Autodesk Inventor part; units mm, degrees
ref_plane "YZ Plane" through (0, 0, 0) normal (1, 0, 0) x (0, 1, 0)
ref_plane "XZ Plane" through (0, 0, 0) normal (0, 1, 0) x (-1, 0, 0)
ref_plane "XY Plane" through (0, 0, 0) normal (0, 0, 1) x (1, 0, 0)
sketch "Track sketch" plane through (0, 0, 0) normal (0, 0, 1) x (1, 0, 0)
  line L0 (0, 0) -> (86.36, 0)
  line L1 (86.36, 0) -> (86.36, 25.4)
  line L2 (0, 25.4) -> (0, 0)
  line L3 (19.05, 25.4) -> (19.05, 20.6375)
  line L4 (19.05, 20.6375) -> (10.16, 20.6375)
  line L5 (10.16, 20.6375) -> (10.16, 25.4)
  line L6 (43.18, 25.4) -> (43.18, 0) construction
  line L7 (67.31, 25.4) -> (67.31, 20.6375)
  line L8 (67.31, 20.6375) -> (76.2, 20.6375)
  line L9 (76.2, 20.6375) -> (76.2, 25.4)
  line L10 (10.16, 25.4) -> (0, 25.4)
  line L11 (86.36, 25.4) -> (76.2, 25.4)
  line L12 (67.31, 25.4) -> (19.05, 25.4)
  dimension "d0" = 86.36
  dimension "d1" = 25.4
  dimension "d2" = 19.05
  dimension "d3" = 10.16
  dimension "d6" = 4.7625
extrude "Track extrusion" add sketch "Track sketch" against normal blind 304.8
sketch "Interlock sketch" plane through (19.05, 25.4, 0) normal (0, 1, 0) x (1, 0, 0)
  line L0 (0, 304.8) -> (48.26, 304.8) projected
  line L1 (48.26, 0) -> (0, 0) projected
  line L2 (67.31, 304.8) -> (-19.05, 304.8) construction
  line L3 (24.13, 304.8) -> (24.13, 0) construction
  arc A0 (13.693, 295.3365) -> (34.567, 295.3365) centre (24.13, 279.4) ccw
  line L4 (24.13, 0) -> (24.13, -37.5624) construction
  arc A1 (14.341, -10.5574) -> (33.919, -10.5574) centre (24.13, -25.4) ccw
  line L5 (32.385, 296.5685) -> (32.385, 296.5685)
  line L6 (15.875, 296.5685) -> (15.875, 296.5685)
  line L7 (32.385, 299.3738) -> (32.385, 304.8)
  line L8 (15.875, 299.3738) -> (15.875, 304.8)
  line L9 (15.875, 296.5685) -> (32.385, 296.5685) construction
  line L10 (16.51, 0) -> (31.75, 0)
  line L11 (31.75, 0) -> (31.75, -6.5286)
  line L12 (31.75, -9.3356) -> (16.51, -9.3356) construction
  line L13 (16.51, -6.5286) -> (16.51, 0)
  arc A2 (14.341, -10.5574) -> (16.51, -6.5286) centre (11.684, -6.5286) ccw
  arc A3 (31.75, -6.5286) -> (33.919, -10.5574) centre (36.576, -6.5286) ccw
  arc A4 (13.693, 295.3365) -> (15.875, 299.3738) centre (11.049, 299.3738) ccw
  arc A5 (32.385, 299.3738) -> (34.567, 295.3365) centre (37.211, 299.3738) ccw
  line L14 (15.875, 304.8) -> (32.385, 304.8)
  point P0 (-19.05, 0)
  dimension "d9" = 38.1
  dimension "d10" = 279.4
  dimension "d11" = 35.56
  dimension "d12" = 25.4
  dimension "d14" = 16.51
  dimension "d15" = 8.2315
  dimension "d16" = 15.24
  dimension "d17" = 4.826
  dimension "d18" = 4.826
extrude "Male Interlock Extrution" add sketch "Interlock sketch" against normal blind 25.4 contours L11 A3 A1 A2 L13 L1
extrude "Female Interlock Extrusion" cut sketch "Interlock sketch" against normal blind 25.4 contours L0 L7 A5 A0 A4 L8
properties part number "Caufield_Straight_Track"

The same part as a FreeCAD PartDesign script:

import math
import FreeCAD as App
import Part
import Sketcher

V = App.Vector
Q = App.Units.Quantity


def add_polygon(sketch, points):
    """Adds a closed chain of lines whose ends are joined by coincident constraints."""
    first, n = sketch.GeometryCount, len(points)
    for a, b in zip(points, points[1:] + points[:1]):
        sketch.addGeometry(Part.LineSegment(App.Vector(*a, 0), App.Vector(*b, 0)), False)
    for i in range(n):
        sketch.addConstraint(Sketcher.Constraint("Coincident", first + i, 2, first + (i + 1) % n, 1))

doc = App.newDocument("Part")
body = doc.addObject("PartDesign::Body", "Body")

sketch1 = doc.addObject("Sketcher::SketchObject", "Sketch")
body.addObject(sketch1)
sketch1.AttachmentSupport = (doc.XY_Plane, [""])
sketch1.MapMode = "FlatFace"
add_polygon(sketch1, [(0, 25.4), (0, 0), (86.4, 0), (86.4, 25.4), (76.2, 25.4), (76.2, 20.6), (67.3, 20.6), (67.3, 25.4), (19.1, 25.4), (19.1, 20.6), (10.2, 20.6), (10.2, 25.4)])
sketch1.addConstraint([
    Sketcher.Constraint("Vertical", 0),
    Sketcher.Constraint("Horizontal", 1),
    Sketcher.Constraint("Vertical", 2),
    Sketcher.Constraint("Horizontal", 3),
    Sketcher.Constraint("Vertical", 4),
    Sketcher.Constraint("Horizontal", 5),
    Sketcher.Constraint("Vertical", 6),
    Sketcher.Constraint("Horizontal", 7),
    Sketcher.Constraint("Vertical", 8),
    Sketcher.Constraint("Horizontal", 9),
    Sketcher.Constraint("Vertical", 10),
    Sketcher.Constraint("Horizontal", 11),
    Sketcher.Constraint("Coincident", 0, 2, -1, 1),
    Sketcher.Constraint("Horizontal", 3, 2, 6, 2),
    Sketcher.Constraint("Horizontal", 5, 2, 8, 2),
    Sketcher.Constraint("Horizontal", 7, 2, 10, 2),
    Sketcher.Constraint("Equal", 5, 9),
    Sketcher.Constraint("Equal", 3, 11),
    Sketcher.Constraint("DistanceY", 0, 2, 0, 1, Q("1 in")),
    Sketcher.Constraint("DistanceX", 1, 1, 1, 2, Q("3.4 in")),
    Sketcher.Constraint("DistanceX", 3, 2, 3, 1, Q("0.4 in")),
    Sketcher.Constraint("DistanceY", 4, 2, 4, 1, Q("0.1875 in")),
    Sketcher.Constraint("DistanceX", -1, 1, 7, 2, Q("0.75 in")),
])
pad1 = doc.addObject("PartDesign::Pad", "Pad")
body.addObject(pad1)
pad1.Profile = sketch1
pad1.Length = Q("12 in")
pad1.Reversed = True

sketch2 = doc.addObject("Sketcher::SketchObject", "Sketch001")
body.addObject(sketch2)
sketch2.AttachmentSupport = (doc.XZ_Plane, [""])
sketch2.MapMode = "FlatFace"
sketch2.AttachmentOffset = App.Placement(V(0, 0, -1 * 25.4), App.Rotation())
sketch2.addGeometry([
    Part.LineSegment(V(50.8, 6.5, 0), V(50.8, 0, 0)),
    Part.LineSegment(V(50.8, 0, 0), V(35.6, 0, 0)),
    Part.LineSegment(V(35.6, 0, 0), V(35.6, 6.5, 0)),
    Part.ArcOfCircle(Part.Circle(V(30.7, 6.5, 0), V(0, 0, 1), 4.8), math.radians(0), math.radians(57)),
    Part.ArcOfCircle(Part.Circle(V(43.2, 25.4, 0), V(0, 0, 1), 17.8), math.radians(-57), math.radians(237)),
    Part.ArcOfCircle(Part.Circle(V(55.6, 6.5, 0), V(0, 0, 1), 4.8), math.radians(123), math.radians(180)),
], False)
sketch2.addConstraint([
    Sketcher.Constraint("Coincident", 0, 2, 1, 1),
    Sketcher.Constraint("Coincident", 1, 2, 2, 1),
    Sketcher.Constraint("Tangent", 2, 2, 3, 1),
    Sketcher.Constraint("Tangent", 3, 2, 4, 2),
    Sketcher.Constraint("Tangent", 4, 1, 5, 1),
    Sketcher.Constraint("Tangent", 5, 2, 0, 1),
    Sketcher.Constraint("Vertical", 0),
    Sketcher.Constraint("Horizontal", 1),
    Sketcher.Constraint("Vertical", 2),
    Sketcher.Constraint("Equal", 3, 5),
    Sketcher.Constraint("PointOnObject", 0, 2, -1),
    Sketcher.Constraint("Horizontal", 3, 3, 5, 3),
    Sketcher.Constraint("Radius", 4, Q("0.7 in")),
    Sketcher.Constraint("Radius", 3, Q("0.19 in")),
    Sketcher.Constraint("DistanceX", 1, 2, 1, 1, Q("0.6 in")),
    Sketcher.Constraint("DistanceY", -1, 1, 4, 3, Q("1 in")),
    Sketcher.Constraint("DistanceX", -1, 1, 1, 2, Q("1.4 in")),
])
pad2 = doc.addObject("PartDesign::Pad", "Pad001")
body.addObject(pad2)
pad2.Profile = sketch2
pad2.Length = Q("1 in")

sketch3 = doc.addObject("Sketcher::SketchObject", "Sketch002")
body.addObject(sketch3)
sketch3.AttachmentSupport = (doc.XZ_Plane, [""])
sketch3.MapMode = "FlatFace"
sketch3.AttachmentOffset = App.Placement(V(0, 0, -1 * 25.4), App.Rotation())
sketch3.addGeometry([
    Part.LineSegment(V(51.4, -304.8, 0), V(34.9, -304.8, 0)),
    Part.LineSegment(V(34.9, -304.8, 0), V(34.9, -299.4, 0)),
    Part.ArcOfCircle(Part.Circle(V(30.1, -299.4, 0), V(0, 0, 1), 4.8), math.radians(0), math.radians(57)),
    Part.ArcOfCircle(Part.Circle(V(43.2, -279.4, 0), V(0, 0, 1), 19.1), math.radians(-57), math.radians(237)),
    Part.ArcOfCircle(Part.Circle(V(56.3, -299.4, 0), V(0, 0, 1), 4.8), math.radians(123), math.radians(180)),
    Part.LineSegment(V(51.4, -299.4, 0), V(51.4, -304.8, 0)),
], False)
sketch3.addConstraint([
    Sketcher.Constraint("Coincident", 0, 2, 1, 1),
    Sketcher.Constraint("Tangent", 1, 2, 2, 1),
    Sketcher.Constraint("Tangent", 2, 2, 3, 2),
    Sketcher.Constraint("Tangent", 3, 1, 4, 1),
    Sketcher.Constraint("Tangent", 4, 2, 5, 1),
    Sketcher.Constraint("Coincident", 5, 2, 0, 1),
    Sketcher.Constraint("Horizontal", 0),
    Sketcher.Constraint("Vertical", 1),
    Sketcher.Constraint("Vertical", 5),
    Sketcher.Constraint("Equal", 2, 4),
    Sketcher.Constraint("Horizontal", 2, 3, 4, 3),
    Sketcher.Constraint("Radius", 2, Q("0.19 in")),
    Sketcher.Constraint("Radius", 3, Q("0.75 in")),
    Sketcher.Constraint("DistanceY", 3, 3, -1, 1, Q("11 in")),
    Sketcher.Constraint("DistanceY", 0, 2, 3, 3, Q("1 in")),
    Sketcher.Constraint("DistanceX", 0, 2, 0, 1, Q("0.65 in")),
    Sketcher.Constraint("DistanceX", -1, 1, 3, 3, Q("1.7 in")),
])
pocket1 = doc.addObject("PartDesign::Pocket", "Pocket")
body.addObject(pocket1)
pocket1.Profile = sketch3
pocket1.Length = Q("1 in")
pocket1.Reversed = True

doc.recompute()
